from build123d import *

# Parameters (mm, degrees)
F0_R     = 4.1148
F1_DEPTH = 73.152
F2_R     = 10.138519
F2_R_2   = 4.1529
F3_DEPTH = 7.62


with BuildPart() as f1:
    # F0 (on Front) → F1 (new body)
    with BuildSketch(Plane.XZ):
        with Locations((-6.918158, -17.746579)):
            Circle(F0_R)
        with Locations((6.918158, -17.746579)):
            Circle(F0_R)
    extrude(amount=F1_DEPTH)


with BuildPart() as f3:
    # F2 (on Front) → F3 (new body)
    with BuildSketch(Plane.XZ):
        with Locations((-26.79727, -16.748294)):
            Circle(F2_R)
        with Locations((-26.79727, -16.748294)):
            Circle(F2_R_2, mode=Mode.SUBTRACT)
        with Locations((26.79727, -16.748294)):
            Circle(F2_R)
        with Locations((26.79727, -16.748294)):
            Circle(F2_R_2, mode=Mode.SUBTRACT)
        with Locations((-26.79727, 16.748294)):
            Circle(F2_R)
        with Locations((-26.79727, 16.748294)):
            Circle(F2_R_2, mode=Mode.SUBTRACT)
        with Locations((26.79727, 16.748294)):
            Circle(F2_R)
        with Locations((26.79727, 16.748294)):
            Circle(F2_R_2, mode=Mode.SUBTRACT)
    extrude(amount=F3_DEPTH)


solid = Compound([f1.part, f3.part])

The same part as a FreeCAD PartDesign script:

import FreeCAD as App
import Part
import Sketcher
from FreeCAD import Vector
Q = App.Units.Quantity

doc = App.newDocument("Part")
body = doc.addObject("PartDesign::Body", "Body")
body.AllowCompound = True

# Sketch on XZ plane
sketch1 = body.newObject("Sketcher::SketchObject", "Sketch")
sketch1.AttachmentSupport = (doc.getObject("XZ_Plane"), [""])
sketch1.MapMode = "FlatFace"
sketch1.addGeometry(Part.Circle(Vector(-6.9, -17.7, 0), Vector(0, 0, 1), 4.1), False)
sketch1.addGeometry(Part.Circle(Vector(6.9, -17.7, 0), Vector(0, 0, 1), 4.1), False)
sketch1.addConstraint(Sketcher.Constraint("Equal", 0, 1))
sketch1.addConstraint(Sketcher.Constraint("Symmetric", 0, 3, 1, 3, -2))
sketch1.addConstraint(Sketcher.Constraint("Diameter", 0, Q("0.324 in")))
sketch1.addConstraint(Sketcher.Constraint("DistanceY", 0, 3, -1, 1, 17.746579))
sketch1.addConstraint(Sketcher.Constraint("DistanceX", 0, 3, -1, 1, 6.918158))
pad1 = body.newObject("PartDesign::Pad", "Pad")
pad1.Profile = sketch1
pad1.Length = Q("2.88 in")
body2 = doc.addObject("PartDesign::Body", "Body001")
body2.AllowCompound = True

# Sketch on XZ plane
sketch2 = body2.newObject("Sketcher::SketchObject", "Sketch001")
sketch2.AttachmentSupport = (doc.getObject("XZ_Plane001"), [""])
sketch2.MapMode = "FlatFace"
sketch2.addGeometry(Part.Circle(Vector(-26.8, -16.7, 0), Vector(0, 0, 1), 10.1), False)
sketch2.addGeometry(Part.Circle(Vector(-26.8, -16.7, 0), Vector(0, 0, 1), 4.2), False)
sketch2.addGeometry(Part.Circle(Vector(26.8, -16.7, 0), Vector(0, 0, 1), 10.1), False)
sketch2.addGeometry(Part.Circle(Vector(26.8, -16.7, 0), Vector(0, 0, 1), 4.2), False)
sketch2.addGeometry(Part.Circle(Vector(-26.8, 16.7, 0), Vector(0, 0, 1), 10.1), False)
sketch2.addGeometry(Part.Circle(Vector(-26.8, 16.7, 0), Vector(0, 0, 1), 4.2), False)
sketch2.addGeometry(Part.Circle(Vector(26.8, 16.7, 0), Vector(0, 0, 1), 10.1), False)
sketch2.addGeometry(Part.Circle(Vector(26.8, 16.7, 0), Vector(0, 0, 1), 4.2), False)
sketch2.addConstraint(Sketcher.Constraint("Coincident", 1, 3, 0, 3))
sketch2.addConstraint(Sketcher.Constraint("Coincident", 3, 3, 2, 3))
sketch2.addConstraint(Sketcher.Constraint("Coincident", 5, 3, 4, 3))
sketch2.addConstraint(Sketcher.Constraint("Coincident", 7, 3, 6, 3))
sketch2.addConstraint(Sketcher.Constraint("Equal", 0, 2))
sketch2.addConstraint(Sketcher.Constraint("Equal", 1, 3))
sketch2.addConstraint(Sketcher.Constraint("Equal", 2, 4))
sketch2.addConstraint(Sketcher.Constraint("Equal", 3, 5))
sketch2.addConstraint(Sketcher.Constraint("Equal", 4, 6))
sketch2.addConstraint(Sketcher.Constraint("Equal", 5, 7))
sketch2.addConstraint(Sketcher.Constraint("Symmetric", 2, 3, 4, 3, -1, 1))
sketch2.addConstraint(Sketcher.Constraint("Symmetric", 0, 3, 6, 3, -1, 1))
sketch2.addConstraint(Sketcher.Constraint("Symmetric", 0, 3, 2, 3, -2))
sketch2.addConstraint(Sketcher.Constraint("Diameter", 1, Q("0.327 in")))
sketch2.addConstraint(Sketcher.Constraint("Diameter", 0, 20.277038))
sketch2.addConstraint(Sketcher.Constraint("DistanceX", 0, 3, -1, 1, 26.79727))
sketch2.addConstraint(Sketcher.Constraint("DistanceY", 0, 3, 4, 3, 33.496588))
pad2 = body2.newObject("PartDesign::Pad", "Pad001")
pad2.Profile = sketch2
pad2.Length = Q("0.3 in")

doc.recompute()
